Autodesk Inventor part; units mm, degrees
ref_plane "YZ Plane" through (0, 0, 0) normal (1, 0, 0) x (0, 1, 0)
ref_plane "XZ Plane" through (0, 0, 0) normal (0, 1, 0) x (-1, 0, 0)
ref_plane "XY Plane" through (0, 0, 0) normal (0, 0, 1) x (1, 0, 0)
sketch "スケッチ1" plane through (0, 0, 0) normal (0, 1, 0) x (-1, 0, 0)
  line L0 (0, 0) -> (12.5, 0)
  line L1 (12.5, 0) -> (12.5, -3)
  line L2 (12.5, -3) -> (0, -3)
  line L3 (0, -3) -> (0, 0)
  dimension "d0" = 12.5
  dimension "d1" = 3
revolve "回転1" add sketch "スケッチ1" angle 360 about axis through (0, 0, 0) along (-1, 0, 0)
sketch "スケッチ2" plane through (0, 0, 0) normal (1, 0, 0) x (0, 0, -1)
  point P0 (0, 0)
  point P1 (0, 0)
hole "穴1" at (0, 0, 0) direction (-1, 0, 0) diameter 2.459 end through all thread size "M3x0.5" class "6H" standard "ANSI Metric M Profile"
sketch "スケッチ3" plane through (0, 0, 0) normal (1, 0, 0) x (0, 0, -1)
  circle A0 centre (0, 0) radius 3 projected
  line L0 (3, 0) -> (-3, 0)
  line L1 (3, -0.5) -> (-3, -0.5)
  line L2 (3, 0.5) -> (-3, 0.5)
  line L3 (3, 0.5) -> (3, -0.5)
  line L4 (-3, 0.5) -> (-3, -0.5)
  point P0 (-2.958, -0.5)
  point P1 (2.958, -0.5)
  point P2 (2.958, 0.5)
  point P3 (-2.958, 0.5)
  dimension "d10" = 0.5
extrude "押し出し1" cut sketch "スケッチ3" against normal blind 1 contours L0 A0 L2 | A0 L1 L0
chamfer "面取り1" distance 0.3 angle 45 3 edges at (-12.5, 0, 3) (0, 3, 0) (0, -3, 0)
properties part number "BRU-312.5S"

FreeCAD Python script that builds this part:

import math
import FreeCAD as App
import Part
import Sketcher
from FreeCAD import Vector


def edges_at(feature, points):
    """Names of the edges that pass closest to the given points."""
    edges = feature.Shape.Edges
    near = lambda p: min(range(len(edges)), key=lambda i: edges[i].distToShape(Part.Vertex(*p))[0])
    return sorted({f"Edge{near(p) + 1}" for p in points})


def add_polygon(sketch, points):
    """Adds a closed chain of lines whose ends are joined by coincident constraints."""
    first, n = sketch.GeometryCount, len(points)
    for a, b in zip(points, points[1:] + points[:1]):
        sketch.addGeometry(Part.LineSegment(App.Vector(*a, 0), App.Vector(*b, 0)), False)
    for i in range(n):
        sketch.addConstraint(Sketcher.Constraint("Coincident", first + i, 2, first + (i + 1) % n, 1))

doc = App.newDocument("Part")
body = doc.addObject("PartDesign::Body", "Body")

# Sketch on XZ plane
sketch1 = body.newObject("Sketcher::SketchObject", "Sketch")
sketch1.AttachmentSupport = (doc.getObject("XZ_Plane"), [""])
sketch1.MapMode = "FlatFace"
add_polygon(sketch1, [(-12.5, 0), (0, 0), (0, -3), (-12.5, -3)])  # lines 0-3
sketch1.addConstraint([
    Sketcher.Constraint("Horizontal", 0),
    Sketcher.Constraint("Vertical", 1),
    Sketcher.Constraint("Horizontal", 2),
    Sketcher.Constraint("Vertical", 3),
    Sketcher.Constraint("Coincident", 0, 2, -1, 1),
    Sketcher.Constraint("DistanceY", 1, 2, 1, 1, 3.0),
    Sketcher.Constraint("DistanceX", 0, 1, 0, 2, 12.5),
])
revolution = body.newObject("PartDesign::Revolution", "Revolution")
revolution.Profile = sketch1
revolution.ReferenceAxis = (sketch1, ["H_Axis"])
revolution.Angle = 360

# Sketch on YZ plane
sketch2 = body.newObject("Sketcher::SketchObject", "Sketch001")
sketch2.AttachmentSupport = (doc.getObject("YZ_Plane"), [""])
sketch2.MapMode = "FlatFace"
sketch2.addGeometry(Part.Circle(Vector(0, 0, 0), Vector(0, 0, 1), 1.2), False)
sketch2.addConstraint([
    Sketcher.Constraint("Coincident", 0, 3, -1, 1),
    Sketcher.Constraint("Diameter", 0, 2.459),
])
doc.recompute()
hole = body.newObject("PartDesign::Hole", "Hole")
hole.Profile = sketch2
hole.ThreadType = "None"
hole.Diameter = 2.459
hole.DepthType = "ThroughAll"

# Sketch on YZ plane
sketch3 = body.newObject("Sketcher::SketchObject", "Sketch002")
sketch3.AttachmentSupport = (doc.getObject("YZ_Plane"), [""])
sketch3.MapMode = "FlatFace"
sketch3.addGeometry([
    Part.ArcOfCircle(Part.Circle(Vector(0, 0, 0), Vector(0, 0, 1), 3), math.radians(80.41), math.radians(99.59)),
    Part.LineSegment(Vector(-0.5, 3, 0), Vector(-0.5, -3, 0)),
    Part.ArcOfCircle(Part.Circle(Vector(0, 0, 0), Vector(0, 0, 1), 3), math.radians(-99.59), math.radians(-80.41)),
    Part.LineSegment(Vector(0.5, -3, 0), Vector(0.5, 3, 0)),
], False)
sketch3.addConstraint([
    Sketcher.Constraint("Coincident", 0, 2, 1, 1),
    Sketcher.Constraint("Coincident", 1, 2, 2, 1),
    Sketcher.Constraint("Coincident", 2, 2, 3, 1),
    Sketcher.Constraint("Coincident", 3, 2, 0, 1),
    Sketcher.Constraint("Vertical", 1),
    Sketcher.Constraint("Vertical", 3),
    Sketcher.Constraint("Coincident", 0, 3, -1, 1),
    Sketcher.Constraint("Coincident", 2, 3, -1, 1),
    Sketcher.Constraint("Equal", 0, 2),
    Sketcher.Constraint("Horizontal", 1, 2, 2, 2),
    Sketcher.Constraint("Radius", 0, 3.0),
    Sketcher.Constraint("DistanceX", 0, 2, -1, 1, 0.5),
])
pocket1 = body.newObject("PartDesign::Pocket", "Pocket")
pocket1.Profile = sketch3
pocket1.Length = 1
doc.recompute()

chamfer = body.newObject("PartDesign::Chamfer", "Chamfer")
chamfer.Base = (pocket1, edges_at(pocket1, [(-12.5, 0, 3), (0, 3, 0), (0, -3, 0)]))
chamfer.Size = 0.3

doc.recompute()
